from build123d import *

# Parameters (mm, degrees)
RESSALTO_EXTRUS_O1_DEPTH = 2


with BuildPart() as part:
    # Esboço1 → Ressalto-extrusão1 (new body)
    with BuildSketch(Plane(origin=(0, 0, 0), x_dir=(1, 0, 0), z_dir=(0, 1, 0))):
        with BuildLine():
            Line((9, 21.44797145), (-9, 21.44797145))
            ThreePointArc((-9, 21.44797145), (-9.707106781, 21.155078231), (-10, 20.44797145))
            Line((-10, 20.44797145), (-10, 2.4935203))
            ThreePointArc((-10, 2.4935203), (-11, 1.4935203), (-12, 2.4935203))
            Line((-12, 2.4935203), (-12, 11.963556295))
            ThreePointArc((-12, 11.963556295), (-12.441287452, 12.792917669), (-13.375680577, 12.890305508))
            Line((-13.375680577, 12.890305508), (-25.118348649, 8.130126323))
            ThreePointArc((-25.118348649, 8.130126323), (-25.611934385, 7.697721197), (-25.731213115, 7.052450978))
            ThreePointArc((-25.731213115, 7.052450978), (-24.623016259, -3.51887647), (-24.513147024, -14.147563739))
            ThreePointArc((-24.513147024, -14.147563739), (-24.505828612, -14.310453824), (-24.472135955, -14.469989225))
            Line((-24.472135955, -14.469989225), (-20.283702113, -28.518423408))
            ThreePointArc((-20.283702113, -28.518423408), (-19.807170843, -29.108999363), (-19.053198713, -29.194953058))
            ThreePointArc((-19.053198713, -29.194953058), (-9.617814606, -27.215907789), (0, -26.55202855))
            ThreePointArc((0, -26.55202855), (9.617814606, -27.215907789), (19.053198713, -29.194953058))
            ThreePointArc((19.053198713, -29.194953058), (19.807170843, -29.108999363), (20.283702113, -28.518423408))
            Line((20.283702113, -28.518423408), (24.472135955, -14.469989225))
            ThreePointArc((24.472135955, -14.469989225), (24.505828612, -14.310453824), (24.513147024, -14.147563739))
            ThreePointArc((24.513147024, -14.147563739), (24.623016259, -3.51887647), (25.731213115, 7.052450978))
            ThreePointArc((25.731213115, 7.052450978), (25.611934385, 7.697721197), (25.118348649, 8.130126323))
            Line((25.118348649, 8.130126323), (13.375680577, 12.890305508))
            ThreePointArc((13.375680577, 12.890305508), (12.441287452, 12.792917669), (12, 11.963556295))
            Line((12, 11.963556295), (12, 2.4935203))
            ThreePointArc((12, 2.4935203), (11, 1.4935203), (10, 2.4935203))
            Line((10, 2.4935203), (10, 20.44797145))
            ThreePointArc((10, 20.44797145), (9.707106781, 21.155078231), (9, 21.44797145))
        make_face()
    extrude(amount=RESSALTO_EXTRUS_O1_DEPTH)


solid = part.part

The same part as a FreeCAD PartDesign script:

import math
import FreeCAD as App
import Part
import Sketcher

V = App.Vector

doc = App.newDocument("Part")
params = doc.addObject("Spreadsheet::Sheet", "Params")
for row, (alias, value) in enumerate([
    ("sketch1_radius", "1 mm"),
    ("sketch1_radius2", "70 mm"),
    ("sketch1_width", "18 mm"),
    ("pad1_length", "2 mm"),
], start=1):
    params.set(f"A{row}", alias)
    params.set(f"B{row}", "=" + value)
    params.setAlias(f"B{row}", alias)

body = doc.addObject("PartDesign::Body", "Body")

# Sketch on XZ plane
sketch1 = doc.addObject("Sketcher::SketchObject", "Sketch")
body.addObject(sketch1)
sketch1.AttachmentSupport = (doc.XZ_Plane, [""])
sketch1.MapMode = "FlatFace"
sketch1.addGeometry([
    Part.LineSegment(V(9, -21.447971, 0), V(-9, -21.447971, 0)),  # 0
    Part.ArcOfCircle(Part.Circle(V(-9, -20.447971, 0), V(0, 0, 1), 1), math.radians(-180), math.radians(-90)),  # 1
    Part.LineSegment(V(-10, -20.447971, 0), V(-10, -2.49352, 0)),  # 2
    Part.ArcOfCircle(Part.Circle(V(-11, -2.49352, 0), V(0, 0, 1), 1), math.radians(0), math.radians(180)),  # 3
    Part.LineSegment(V(-12, -2.49352, 0), V(-12, -11.963556, 0)),  # 4
    Part.ArcOfCircle(Part.Circle(V(-13, -11.963556, 0), V(0, 0, 1), 1), math.radians(-112.066383), math.radians(0)),  # 5
    Part.LineSegment(V(-13.375681, -12.890306, 0), V(-25.118349, -8.130126, 0)),  # 6
    Part.ArcOfCircle(Part.Circle(V(-24.742668, -7.203377, 0), V(0, 0, 1), 1), math.radians(171.319399), math.radians(247.933617)),  # 7
    Part.ArcOfCircle(Part.Circle(V(-137.420978, 9.999786, 0), V(0, 0, 1), 112.983991), math.radians(-8.680601), math.radians(2.10387)),  # 8
    Part.ArcOfCircle(Part.Circle(V(-23.513821, 14.184275, 0), V(0, 0, 1), 1), math.radians(163.39845), math.radians(182.10387)),  # 9
    Part.LineSegment(V(-24.472136, 14.469989, 0), V(-20.283702, 28.518423, 0)),  # 10
    Part.ArcOfCircle(Part.Circle(V(-19.325387, 28.232709, 0), V(0, 0, 1), 1), math.radians(74.20546), math.radians(163.398451)),  # 11
    Part.ArcOfCircle(Part.Circle(V(0, 96.552029, 0), V(0, 0, 1), 70), math.radians(-105.79454), math.radians(-90)),  # 12
    Part.ArcOfCircle(Part.Circle(V(0, 96.552029, 0), V(0, 0, 1), 70), math.radians(-90), math.radians(-74.20546)),  # 13
    Part.ArcOfCircle(Part.Circle(V(19.325387, 28.232709, 0), V(0, 0, 1), 1), math.radians(16.601549), math.radians(105.79454)),  # 14
    Part.LineSegment(V(20.283702, 28.518423, 0), V(24.472136, 14.469989, 0)),  # 15
    Part.ArcOfCircle(Part.Circle(V(23.513821, 14.184275, 0), V(0, 0, 1), 1), math.radians(-2.10387), math.radians(16.60155)),  # 16
    Part.ArcOfCircle(Part.Circle(V(137.420978, 9.999786, 0), V(0, 0, 1), 112.983991), math.radians(177.89613), math.radians(188.680601)),  # 17
    Part.ArcOfCircle(Part.Circle(V(24.742668, -7.203377, 0), V(0, 0, 1), 1), math.radians(-67.933617), math.radians(8.680601)),  # 18
    Part.LineSegment(V(25.118349, -8.130126, 0), V(13.375681, -12.890306, 0)),  # 19
    Part.ArcOfCircle(Part.Circle(V(13, -11.963556, 0), V(0, 0, 1), 1), math.radians(180), math.radians(292.066383)),  # 20
    Part.LineSegment(V(12, -11.963556, 0), V(12, -2.49352, 0)),  # 21
    Part.ArcOfCircle(Part.Circle(V(11, -2.49352, 0), V(0, 0, 1), 1), math.radians(0), math.radians(180)),  # 22
    Part.LineSegment(V(10, -2.49352, 0), V(10, -20.447971, 0)),  # 23
    Part.ArcOfCircle(Part.Circle(V(9, -20.447971, 0), V(0, 0, 1), 1), math.radians(-90), math.radians(0)),  # 24
], False)
sketch1.addConstraint([
    Sketcher.Constraint("Tangent", 0, 2, 1, 2),
    Sketcher.Constraint("Tangent", 1, 1, 2, 1),
    Sketcher.Constraint("Tangent", 2, 2, 3, 1),
    Sketcher.Constraint("Tangent", 3, 2, 4, 1),
    Sketcher.Constraint("Tangent", 4, 2, 5, 2),
    Sketcher.Constraint("Tangent", 5, 1, 6, 1),
    Sketcher.Constraint("Tangent", 6, 2, 7, 2),
    Sketcher.Constraint("Tangent", 7, 1, 8, 1),
    Sketcher.Constraint("Tangent", 8, 2, 9, 2),
    Sketcher.Constraint("Tangent", 9, 1, 10, 1),
    Sketcher.Constraint("Tangent", 10, 2, 11, 2),
    Sketcher.Constraint("Tangent", 11, 1, 12, 1),
    Sketcher.Constraint("Tangent", 12, 2, 13, 1),
    Sketcher.Constraint("Tangent", 13, 2, 14, 2),
    Sketcher.Constraint("Tangent", 14, 1, 15, 1),
    Sketcher.Constraint("Tangent", 15, 2, 16, 2),
    Sketcher.Constraint("Tangent", 16, 1, 17, 1),
    Sketcher.Constraint("Tangent", 17, 2, 18, 2),
    Sketcher.Constraint("Tangent", 18, 1, 19, 1),
    Sketcher.Constraint("Tangent", 19, 2, 20, 2),
    Sketcher.Constraint("Tangent", 20, 1, 21, 1),
    Sketcher.Constraint("Tangent", 21, 2, 22, 1),
    Sketcher.Constraint("Tangent", 22, 2, 23, 1),
    Sketcher.Constraint("Tangent", 23, 2, 24, 2),
    Sketcher.Constraint("Tangent", 24, 1, 0, 1),
    Sketcher.Constraint("Horizontal", 0),
    Sketcher.Constraint("Vertical", 2),
    Sketcher.Constraint("Vertical", 4),
    Sketcher.Constraint("Vertical", 21),
    Sketcher.Constraint("Vertical", 23),
    Sketcher.Constraint("Equal", 1, 3),
    Sketcher.Constraint("Equal", 3, 5),
    Sketcher.Constraint("Equal", 5, 7),
    Sketcher.Constraint("Equal", 7, 9),
    Sketcher.Constraint("Equal", 9, 11),
    Sketcher.Constraint("Equal", 12, 13),
    Sketcher.Constraint("Equal", 11, 14),
    Sketcher.Constraint("Equal", 14, 16),
    Sketcher.Constraint("Equal", 8, 17),
    Sketcher.Constraint("Equal", 16, 18),
    Sketcher.Constraint("Equal", 18, 20),
    Sketcher.Constraint("Equal", 20, 22),
    Sketcher.Constraint("Equal", 22, 24),
    Sketcher.Constraint("Symmetric", 11, 3, 14, 3, -2),
    Sketcher.Constraint("Symmetric", 9, 3, 16, 3, -2),
    Sketcher.Constraint("Symmetric", 7, 3, 18, 3, -2),
    Sketcher.Constraint("Symmetric", 5, 3, 20, 3, -2),
    Sketcher.Constraint("PointOnObject", 12, 2, -2),
    Sketcher.Constraint("Horizontal", 3, 3, 22, 3),
    Sketcher.Constraint("Radius", 1, 1.0),
    Sketcher.Constraint("Radius", 12, 70.0),
    Sketcher.Constraint("DistanceX", 0, 2, 0, 1, 18.0),
    Sketcher.Constraint("Radius", 8, 112.983991),
    Sketcher.Constraint("DistanceY", 2, 1, 2, 2, 17.954451),
    Sketcher.Constraint("DistanceX", 11, 1, -1, 1, 19.053199),
    Sketcher.Constraint("Distance", 10, 14.659518),
    Sketcher.Constraint("DistanceY", 4, 2, 4, 1, 9.470036),
    Sketcher.Constraint("DistanceY", 1, 3, -1, 1, 20.447971),
    Sketcher.Constraint("DistanceX", 7, 3, -1, 1, 24.742668),
    Sketcher.Constraint("DistanceX", 9, 3, -1, 1, 23.513821),
    Sketcher.Constraint("DistanceY", -1, 1, 11, 3, 28.232709),
    Sketcher.Constraint("DistanceX", 5, 1, -1, 1, 13.375681),
])
sketch1.setExpression("Constraints[49]", "Params.sketch1_radius")
sketch1.setExpression("Constraints[50]", "Params.sketch1_radius2")
sketch1.setExpression("Constraints[51]", "Params.sketch1_width")
pad1 = doc.addObject("PartDesign::Pad", "Pad")
body.addObject(pad1)
pad1.Profile = sketch1
pad1.setExpression("Length", "Params.pad1_length")
pad1.Reversed = True

doc.recompute()
